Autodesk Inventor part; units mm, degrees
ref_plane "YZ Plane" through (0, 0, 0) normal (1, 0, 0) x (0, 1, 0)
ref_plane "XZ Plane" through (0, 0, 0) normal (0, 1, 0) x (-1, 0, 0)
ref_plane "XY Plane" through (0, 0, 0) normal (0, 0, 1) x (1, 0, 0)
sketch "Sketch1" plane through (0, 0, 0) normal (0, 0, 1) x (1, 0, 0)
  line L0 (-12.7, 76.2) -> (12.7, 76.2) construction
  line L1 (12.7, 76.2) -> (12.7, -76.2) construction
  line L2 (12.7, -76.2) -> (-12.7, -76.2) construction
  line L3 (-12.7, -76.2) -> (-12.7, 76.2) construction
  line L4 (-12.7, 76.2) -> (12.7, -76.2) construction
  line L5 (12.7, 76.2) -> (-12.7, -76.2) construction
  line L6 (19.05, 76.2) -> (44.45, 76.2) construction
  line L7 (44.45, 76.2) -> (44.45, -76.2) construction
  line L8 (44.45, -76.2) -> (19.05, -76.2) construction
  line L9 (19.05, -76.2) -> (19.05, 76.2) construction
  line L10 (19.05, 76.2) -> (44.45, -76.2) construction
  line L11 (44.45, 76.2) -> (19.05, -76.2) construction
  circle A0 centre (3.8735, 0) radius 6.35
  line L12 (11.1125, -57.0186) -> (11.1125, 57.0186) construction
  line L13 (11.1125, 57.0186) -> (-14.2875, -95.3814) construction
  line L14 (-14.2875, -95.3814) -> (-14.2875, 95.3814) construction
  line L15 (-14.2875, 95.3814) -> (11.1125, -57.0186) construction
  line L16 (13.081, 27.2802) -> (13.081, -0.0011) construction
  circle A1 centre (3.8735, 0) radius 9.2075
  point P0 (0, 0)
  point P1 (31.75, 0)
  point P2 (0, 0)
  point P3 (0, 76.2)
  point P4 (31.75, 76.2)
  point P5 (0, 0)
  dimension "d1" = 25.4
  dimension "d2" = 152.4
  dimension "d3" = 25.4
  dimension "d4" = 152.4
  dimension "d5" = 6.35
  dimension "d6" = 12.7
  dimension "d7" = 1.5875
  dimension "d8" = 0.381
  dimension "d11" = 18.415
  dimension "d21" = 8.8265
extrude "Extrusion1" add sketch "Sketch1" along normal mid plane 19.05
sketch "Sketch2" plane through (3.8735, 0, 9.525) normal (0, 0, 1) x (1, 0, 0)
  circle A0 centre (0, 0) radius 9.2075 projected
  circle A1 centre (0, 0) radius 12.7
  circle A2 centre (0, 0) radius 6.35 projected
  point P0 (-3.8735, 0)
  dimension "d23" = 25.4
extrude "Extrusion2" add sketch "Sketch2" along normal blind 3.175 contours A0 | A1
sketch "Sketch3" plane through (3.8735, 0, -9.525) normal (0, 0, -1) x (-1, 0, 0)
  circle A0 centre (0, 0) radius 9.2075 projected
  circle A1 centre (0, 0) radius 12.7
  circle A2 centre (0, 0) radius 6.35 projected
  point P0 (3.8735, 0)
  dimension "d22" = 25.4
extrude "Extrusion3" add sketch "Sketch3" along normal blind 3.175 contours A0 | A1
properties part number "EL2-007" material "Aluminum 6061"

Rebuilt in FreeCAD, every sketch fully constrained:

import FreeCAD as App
import Part
import Sketcher
Q = App.Units.Quantity

doc = App.newDocument("Part")
body = doc.addObject("PartDesign::Body", "Body")

# Sketch on XY plane
sketch1 = doc.addObject("Sketcher::SketchObject", "Sketch")
body.addObject(sketch1)
sketch1.AttachmentSupport = (doc.XY_Plane, [""])
sketch1.MapMode = "FlatFace"
sketch1.addGeometry([
    Part.Circle(App.Vector(4, 0, 0), App.Vector(0, 0, 1), 9),
    Part.Circle(App.Vector(4, 0, 0), App.Vector(0, 0, 1), 6),
], False)
sketch1.addConstraint([
    Sketcher.Constraint("Coincident", 1, 3, 0, 3),
    Sketcher.Constraint("PointOnObject", 0, 3, -1),
    Sketcher.Constraint("Diameter", 1, Q("0.5 in")),
    Sketcher.Constraint("Diameter", 0, Q("0.725 in")),
    Sketcher.Constraint("DistanceX", -1, 1, 0, 3, Q("0.1525 in")),
])
pad1 = doc.addObject("PartDesign::Pad", "Pad")
body.addObject(pad1)
pad1.Profile = sketch1
pad1.Length = Q("0.75 in")
pad1.Midplane = True

# Sketch on XY plane
sketch2 = doc.addObject("Sketcher::SketchObject", "Sketch001")
body.addObject(sketch2)
sketch2.AttachmentSupport = (doc.XY_Plane, [""])
sketch2.MapMode = "FlatFace"
sketch2.AttachmentOffset = App.Placement(App.Vector(0, 0, 0.375 * 25.4), App.Rotation())
sketch2.addGeometry([
    Part.Circle(App.Vector(4, 0, 0), App.Vector(0, 0, 1), 13),
    Part.Circle(App.Vector(4, 0, 0), App.Vector(0, 0, 1), 6),
], False)
sketch2.addConstraint([
    Sketcher.Constraint("Coincident", 1, 3, 0, 3),
    Sketcher.Constraint("PointOnObject", 0, 3, -1),
    Sketcher.Constraint("Diameter", 0, Q("1 in")),
    Sketcher.Constraint("Diameter", 1, Q("0.5 in")),
    Sketcher.Constraint("DistanceX", -1, 1, 0, 3, Q("0.1525 in")),
])
pad2 = doc.addObject("PartDesign::Pad", "Pad001")
body.addObject(pad2)
pad2.Profile = sketch2
pad2.Length = Q("0.125 in")

# Sketch on XY plane
sketch3 = doc.addObject("Sketcher::SketchObject", "Sketch002")
body.addObject(sketch3)
sketch3.AttachmentSupport = (doc.XY_Plane, [""])
sketch3.MapMode = "FlatFace"
sketch3.AttachmentOffset = App.Placement(App.Vector(0, 0, -0.375 * 25.4), App.Rotation())
sketch3.addGeometry([
    Part.Circle(App.Vector(4, 0, 0), App.Vector(0, 0, 1), 13),
    Part.Circle(App.Vector(4, 0, 0), App.Vector(0, 0, 1), 6),
], False)
sketch3.addConstraint([
    Sketcher.Constraint("Coincident", 1, 3, 0, 3),
    Sketcher.Constraint("PointOnObject", 0, 3, -1),
    Sketcher.Constraint("Diameter", 0, Q("1 in")),
    Sketcher.Constraint("Diameter", 1, Q("0.5 in")),
    Sketcher.Constraint("DistanceX", -1, 1, 0, 3, Q("0.1525 in")),
])
pad3 = doc.addObject("PartDesign::Pad", "Pad002")
body.addObject(pad3)
pad3.Profile = sketch3
pad3.Length = Q("0.125 in")
pad3.Reversed = True

doc.recompute()
